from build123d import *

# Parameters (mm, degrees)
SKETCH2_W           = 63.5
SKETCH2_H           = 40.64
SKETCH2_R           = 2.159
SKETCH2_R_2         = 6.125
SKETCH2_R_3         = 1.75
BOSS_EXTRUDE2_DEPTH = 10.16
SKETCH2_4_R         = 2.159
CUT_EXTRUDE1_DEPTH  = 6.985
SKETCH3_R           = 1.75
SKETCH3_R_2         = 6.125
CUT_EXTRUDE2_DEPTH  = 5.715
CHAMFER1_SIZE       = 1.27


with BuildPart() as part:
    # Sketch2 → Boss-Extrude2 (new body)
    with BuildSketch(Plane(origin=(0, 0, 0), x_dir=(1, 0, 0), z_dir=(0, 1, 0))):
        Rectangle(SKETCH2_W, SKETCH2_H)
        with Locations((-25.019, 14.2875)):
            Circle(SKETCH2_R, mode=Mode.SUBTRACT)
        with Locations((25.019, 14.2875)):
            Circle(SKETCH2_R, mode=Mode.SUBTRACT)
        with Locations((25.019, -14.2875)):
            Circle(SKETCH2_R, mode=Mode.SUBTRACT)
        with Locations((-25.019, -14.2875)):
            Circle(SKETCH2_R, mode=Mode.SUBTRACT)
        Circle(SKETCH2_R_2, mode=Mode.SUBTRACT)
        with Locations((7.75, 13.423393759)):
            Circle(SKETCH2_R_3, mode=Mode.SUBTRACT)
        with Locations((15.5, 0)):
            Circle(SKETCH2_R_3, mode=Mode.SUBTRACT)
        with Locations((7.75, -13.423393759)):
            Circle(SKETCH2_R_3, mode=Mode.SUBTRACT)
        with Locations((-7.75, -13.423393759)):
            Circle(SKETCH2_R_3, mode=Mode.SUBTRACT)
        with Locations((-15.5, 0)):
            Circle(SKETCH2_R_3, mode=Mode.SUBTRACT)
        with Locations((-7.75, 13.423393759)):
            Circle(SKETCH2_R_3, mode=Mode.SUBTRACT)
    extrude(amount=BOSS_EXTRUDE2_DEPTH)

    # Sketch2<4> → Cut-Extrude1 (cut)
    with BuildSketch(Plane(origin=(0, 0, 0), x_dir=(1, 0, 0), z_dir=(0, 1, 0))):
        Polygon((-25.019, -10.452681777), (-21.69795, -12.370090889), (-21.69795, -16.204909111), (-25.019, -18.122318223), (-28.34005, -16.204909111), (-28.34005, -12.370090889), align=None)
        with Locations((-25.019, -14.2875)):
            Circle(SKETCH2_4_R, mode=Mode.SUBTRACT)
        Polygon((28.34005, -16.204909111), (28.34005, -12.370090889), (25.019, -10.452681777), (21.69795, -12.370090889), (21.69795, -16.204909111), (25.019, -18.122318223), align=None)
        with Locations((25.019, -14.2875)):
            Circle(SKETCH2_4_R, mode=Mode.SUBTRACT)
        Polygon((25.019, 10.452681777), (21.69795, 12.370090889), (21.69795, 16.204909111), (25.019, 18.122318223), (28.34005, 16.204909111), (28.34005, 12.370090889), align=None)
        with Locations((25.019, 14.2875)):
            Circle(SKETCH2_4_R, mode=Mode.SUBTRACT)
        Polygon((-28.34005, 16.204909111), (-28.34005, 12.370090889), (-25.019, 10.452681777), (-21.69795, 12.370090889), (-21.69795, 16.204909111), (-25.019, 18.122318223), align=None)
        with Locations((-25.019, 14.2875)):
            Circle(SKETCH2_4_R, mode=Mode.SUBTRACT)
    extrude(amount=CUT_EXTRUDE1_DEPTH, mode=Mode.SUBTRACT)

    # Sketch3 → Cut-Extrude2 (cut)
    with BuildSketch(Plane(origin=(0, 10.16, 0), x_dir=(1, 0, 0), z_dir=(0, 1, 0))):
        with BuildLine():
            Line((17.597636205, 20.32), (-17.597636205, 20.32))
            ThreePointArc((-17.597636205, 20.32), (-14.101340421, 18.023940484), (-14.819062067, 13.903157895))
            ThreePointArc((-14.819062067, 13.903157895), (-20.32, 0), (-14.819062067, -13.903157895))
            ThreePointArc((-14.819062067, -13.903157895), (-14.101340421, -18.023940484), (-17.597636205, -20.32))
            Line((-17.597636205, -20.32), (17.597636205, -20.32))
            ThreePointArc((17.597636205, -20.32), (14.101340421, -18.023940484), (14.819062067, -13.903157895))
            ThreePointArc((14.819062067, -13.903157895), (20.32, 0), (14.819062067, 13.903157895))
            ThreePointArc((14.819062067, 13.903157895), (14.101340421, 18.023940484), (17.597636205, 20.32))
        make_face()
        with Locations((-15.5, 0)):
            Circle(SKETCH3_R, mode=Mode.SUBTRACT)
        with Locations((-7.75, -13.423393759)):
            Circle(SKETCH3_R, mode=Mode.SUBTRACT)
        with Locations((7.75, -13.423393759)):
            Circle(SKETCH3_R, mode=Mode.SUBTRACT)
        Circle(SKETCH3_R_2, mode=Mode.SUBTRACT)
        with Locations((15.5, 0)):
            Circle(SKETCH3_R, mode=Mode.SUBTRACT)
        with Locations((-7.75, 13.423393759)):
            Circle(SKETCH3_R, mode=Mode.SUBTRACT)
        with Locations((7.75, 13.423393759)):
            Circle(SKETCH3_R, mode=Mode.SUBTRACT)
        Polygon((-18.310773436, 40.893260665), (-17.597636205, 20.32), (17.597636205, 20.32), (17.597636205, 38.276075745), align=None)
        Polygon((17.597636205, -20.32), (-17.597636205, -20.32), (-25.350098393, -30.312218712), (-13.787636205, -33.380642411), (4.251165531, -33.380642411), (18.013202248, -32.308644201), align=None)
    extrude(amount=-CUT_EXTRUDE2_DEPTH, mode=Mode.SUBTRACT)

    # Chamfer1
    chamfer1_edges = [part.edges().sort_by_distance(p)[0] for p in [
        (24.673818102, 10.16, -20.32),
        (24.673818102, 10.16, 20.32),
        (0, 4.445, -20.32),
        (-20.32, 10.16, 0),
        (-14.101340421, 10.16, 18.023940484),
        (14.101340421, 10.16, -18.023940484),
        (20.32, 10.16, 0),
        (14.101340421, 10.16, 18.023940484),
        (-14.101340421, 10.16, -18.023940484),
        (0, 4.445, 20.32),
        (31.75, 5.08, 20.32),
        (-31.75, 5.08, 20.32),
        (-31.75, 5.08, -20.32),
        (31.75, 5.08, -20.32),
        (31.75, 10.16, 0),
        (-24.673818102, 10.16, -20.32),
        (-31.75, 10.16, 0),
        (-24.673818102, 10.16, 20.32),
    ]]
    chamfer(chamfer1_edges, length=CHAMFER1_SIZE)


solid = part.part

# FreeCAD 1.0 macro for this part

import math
import FreeCAD as App
import Part
import Sketcher

V = App.Vector
Q = App.Units.Quantity


def edges_at(feature, points):
    """Names of the edges that pass closest to the given points."""
    edges = feature.Shape.Edges
    near = lambda p: min(range(len(edges)), key=lambda i: edges[i].distToShape(Part.Vertex(*p))[0])
    return sorted({f"Edge{near(p) + 1}" for p in points})

doc = App.newDocument("Part")
body = doc.addObject("PartDesign::Body", "Body")

# Sketch on XZ plane
sketch1 = doc.addObject("Sketcher::SketchObject", "Sketch")
body.addObject(sketch1)
sketch1.AttachmentSupport = (doc.XZ_Plane, [""])
sketch1.MapMode = "FlatFace"
sketch1.addGeometry(Part.LineSegment(V(-31.8, -20.3, 0), V(-31.8, 20.3, 0)), False)
sketch1.addGeometry(Part.LineSegment(V(-31.8, 20.3, 0), V(31.8, 20.3, 0)), False)
sketch1.addGeometry(Part.LineSegment(V(31.8, 20.3, 0), V(31.8, -20.3, 0)), False)
sketch1.addGeometry(Part.LineSegment(V(31.8, -20.3, 0), V(-31.8, -20.3, 0)), False)
sketch1.addGeometry(Part.Circle(V(-25, 14.3, 0), V(0, 0, 1), 2.2), False)
sketch1.addGeometry(Part.Circle(V(-7.8, 13.4, 0), V(0, 0, 1), 1.8), False)
sketch1.addGeometry(Part.Circle(V(7.8, 13.4, 0), V(0, 0, 1), 1.8), False)
sketch1.addGeometry(Part.Circle(V(25, 14.3, 0), V(0, 0, 1), 2.2), False)
sketch1.addGeometry(Part.Circle(V(-15.5, 0, 0), V(0, 0, 1), 1.8), False)
sketch1.addGeometry(Part.Circle(V(0, 0, 0), V(0, 0, 1), 6.1), False)
sketch1.addGeometry(Part.Circle(V(-25, -14.3, 0), V(0, 0, 1), 2.2), False)
sketch1.addGeometry(Part.Circle(V(-7.8, -13.4, 0), V(0, 0, 1), 1.8), False)
sketch1.addGeometry(Part.Circle(V(15.5, 0, 0), V(0, 0, 1), 1.8), False)
sketch1.addGeometry(Part.Circle(V(7.8, -13.4, 0), V(0, 0, 1), 1.8), False)
sketch1.addGeometry(Part.Circle(V(25, -14.3, 0), V(0, 0, 1), 2.2), False)
sketch1.addConstraint(Sketcher.Constraint("Coincident", 0, 2, 1, 1))
sketch1.addConstraint(Sketcher.Constraint("Coincident", 1, 2, 2, 1))
sketch1.addConstraint(Sketcher.Constraint("Coincident", 2, 2, 3, 1))
sketch1.addConstraint(Sketcher.Constraint("Coincident", 3, 2, 0, 1))
sketch1.addConstraint(Sketcher.Constraint("Vertical", 0))
sketch1.addConstraint(Sketcher.Constraint("Horizontal", 1))
sketch1.addConstraint(Sketcher.Constraint("Vertical", 2))
sketch1.addConstraint(Sketcher.Constraint("Horizontal", 3))
sketch1.addConstraint(Sketcher.Constraint("Coincident", 9, 3, -1, 1))
sketch1.addConstraint(Sketcher.Constraint("Equal", 5, 6))
sketch1.addConstraint(Sketcher.Constraint("Equal", 4, 7))
sketch1.addConstraint(Sketcher.Constraint("Equal", 6, 8))
sketch1.addConstraint(Sketcher.Constraint("Equal", 7, 10))
sketch1.addConstraint(Sketcher.Constraint("Equal", 8, 11))
sketch1.addConstraint(Sketcher.Constraint("Equal", 11, 12))
sketch1.addConstraint(Sketcher.Constraint("Equal", 12, 13))
sketch1.addConstraint(Sketcher.Constraint("Equal", 10, 14))
sketch1.addConstraint(Sketcher.Constraint("Symmetric", 7, 3, 10, 3, -1, 1))
sketch1.addConstraint(Sketcher.Constraint("Symmetric", 6, 3, 11, 3, -1, 1))
sketch1.addConstraint(Sketcher.Constraint("Symmetric", 8, 3, 12, 3, -1, 1))
sketch1.addConstraint(Sketcher.Constraint("Symmetric", 5, 3, 13, 3, -1, 1))
sketch1.addConstraint(Sketcher.Constraint("Symmetric", 4, 3, 14, 3, -1, 1))
sketch1.addConstraint(Sketcher.Constraint("Symmetric", 0, 2, 2, 2, -1, 1))
sketch1.addConstraint(Sketcher.Constraint("Symmetric", 5, 3, 6, 3, -2))
sketch1.addConstraint(Sketcher.Constraint("Symmetric", 4, 3, 7, 3, -2))
sketch1.addConstraint(Sketcher.Constraint("PointOnObject", 8, 3, -1))
sketch1.addConstraint(Sketcher.Constraint("Diameter", 4, Q("0.17 in")))
sketch1.addConstraint(Sketcher.Constraint("DistanceX", 1, 1, 1, 2, Q("2.5 in")))
sketch1.addConstraint(Sketcher.Constraint("DistanceY", 0, 1, 0, 2, Q("1.6 in")))
sketch1.addConstraint(Sketcher.Constraint("Diameter", 5, 3.5))
sketch1.addConstraint(Sketcher.Constraint("Diameter", 9, 12.25))
sketch1.addConstraint(Sketcher.Constraint("DistanceX", 4, 3, 7, 3, Q("1.97 in")))
sketch1.addConstraint(Sketcher.Constraint("DistanceY", -1, 1, 4, 3, Q("0.5625 in")))
sketch1.addConstraint(Sketcher.Constraint("DistanceX", 5, 3, -1, 1, 7.75))
sketch1.addConstraint(Sketcher.Constraint("DistanceX", 8, 3, -1, 1, 15.5))
sketch1.addConstraint(Sketcher.Constraint("DistanceY", -1, 1, 5, 3, 13.423394))
pad1 = doc.addObject("PartDesign::Pad", "Pad")
body.addObject(pad1)
pad1.Profile = sketch1
pad1.Length = Q("0.4 in")
pad1.Reversed = True

# Sketch on XZ plane
sketch2 = doc.addObject("Sketcher::SketchObject", "Sketch001")
body.addObject(sketch2)
sketch2.AttachmentSupport = (doc.XZ_Plane, [""])
sketch2.MapMode = "FlatFace"
sketch2.addGeometry(Part.LineSegment(V(-21.7, 12.4, 0), V(-25, 10.5, 0)), False)
sketch2.addGeometry(Part.LineSegment(V(-25, 10.5, 0), V(-28.3, 12.4, 0)), False)
sketch2.addGeometry(Part.LineSegment(V(-28.3, 12.4, 0), V(-28.3, 16.2, 0)), False)
sketch2.addGeometry(Part.LineSegment(V(-28.3, 16.2, 0), V(-25, 18.1, 0)), False)
sketch2.addGeometry(Part.LineSegment(V(-25, 18.1, 0), V(-21.7, 16.2, 0)), False)
sketch2.addGeometry(Part.LineSegment(V(-21.7, 16.2, 0), V(-21.7, 12.4, 0)), False)
sketch2.addGeometry(Part.Circle(V(-25, 14.3, 0), V(0, 0, 1), 2.2), False)
sketch2.addGeometry(Part.LineSegment(V(28.3, 16.2, 0), V(28.3, 12.4, 0)), False)
sketch2.addGeometry(Part.LineSegment(V(28.3, 12.4, 0), V(25, 10.5, 0)), False)
sketch2.addGeometry(Part.LineSegment(V(25, 10.5, 0), V(21.7, 12.4, 0)), False)
sketch2.addGeometry(Part.LineSegment(V(21.7, 12.4, 0), V(21.7, 16.2, 0)), False)
sketch2.addGeometry(Part.LineSegment(V(21.7, 16.2, 0), V(25, 18.1, 0)), False)
sketch2.addGeometry(Part.LineSegment(V(25, 18.1, 0), V(28.3, 16.2, 0)), False)
sketch2.addGeometry(Part.Circle(V(25, 14.3, 0), V(0, 0, 1), 2.2), False)
sketch2.addGeometry(Part.LineSegment(V(21.7, -12.4, 0), V(25, -10.5, 0)), False)
sketch2.addGeometry(Part.LineSegment(V(25, -10.5, 0), V(28.3, -12.4, 0)), False)
sketch2.addGeometry(Part.LineSegment(V(28.3, -12.4, 0), V(28.3, -16.2, 0)), False)
sketch2.addGeometry(Part.LineSegment(V(28.3, -16.2, 0), V(25, -18.1, 0)), False)
sketch2.addGeometry(Part.LineSegment(V(25, -18.1, 0), V(21.7, -16.2, 0)), False)
sketch2.addGeometry(Part.LineSegment(V(21.7, -16.2, 0), V(21.7, -12.4, 0)), False)
sketch2.addGeometry(Part.Circle(V(25, -14.3, 0), V(0, 0, 1), 2.2), False)
sketch2.addGeometry(Part.LineSegment(V(-28.3, -16.2, 0), V(-28.3, -12.4, 0)), False)
sketch2.addGeometry(Part.LineSegment(V(-28.3, -12.4, 0), V(-25, -10.5, 0)), False)
sketch2.addGeometry(Part.LineSegment(V(-25, -10.5, 0), V(-21.7, -12.4, 0)), False)
sketch2.addGeometry(Part.LineSegment(V(-21.7, -12.4, 0), V(-21.7, -16.2, 0)), False)
sketch2.addGeometry(Part.LineSegment(V(-21.7, -16.2, 0), V(-25, -18.1, 0)), False)
sketch2.addGeometry(Part.LineSegment(V(-25, -18.1, 0), V(-28.3, -16.2, 0)), False)
sketch2.addGeometry(Part.Circle(V(-25, -14.3, 0), V(0, 0, 1), 2.2), False)
sketch2.addConstraint(Sketcher.Constraint("Coincident", 0, 2, 1, 1))
sketch2.addConstraint(Sketcher.Constraint("Coincident", 1, 2, 2, 1))
sketch2.addConstraint(Sketcher.Constraint("Coincident", 2, 2, 3, 1))
sketch2.addConstraint(Sketcher.Constraint("Coincident", 3, 2, 4, 1))
sketch2.addConstraint(Sketcher.Constraint("Coincident", 4, 2, 5, 1))
sketch2.addConstraint(Sketcher.Constraint("Coincident", 5, 2, 0, 1))
sketch2.addConstraint(Sketcher.Constraint("Coincident", 7, 2, 8, 1))
sketch2.addConstraint(Sketcher.Constraint("Coincident", 8, 2, 9, 1))
sketch2.addConstraint(Sketcher.Constraint("Coincident", 9, 2, 10, 1))
sketch2.addConstraint(Sketcher.Constraint("Coincident", 10, 2, 11, 1))
sketch2.addConstraint(Sketcher.Constraint("Coincident", 11, 2, 12, 1))
sketch2.addConstraint(Sketcher.Constraint("Coincident", 12, 2, 7, 1))
sketch2.addConstraint(Sketcher.Constraint("Coincident", 14, 2, 15, 1))
sketch2.addConstraint(Sketcher.Constraint("Coincident", 15, 2, 16, 1))
sketch2.addConstraint(Sketcher.Constraint("Coincident", 16, 2, 17, 1))
sketch2.addConstraint(Sketcher.Constraint("Coincident", 17, 2, 18, 1))
sketch2.addConstraint(Sketcher.Constraint("Coincident", 18, 2, 19, 1))
sketch2.addConstraint(Sketcher.Constraint("Coincident", 19, 2, 14, 1))
sketch2.addConstraint(Sketcher.Constraint("Coincident", 21, 2, 22, 1))
sketch2.addConstraint(Sketcher.Constraint("Coincident", 22, 2, 23, 1))
sketch2.addConstraint(Sketcher.Constraint("Coincident", 23, 2, 24, 1))
sketch2.addConstraint(Sketcher.Constraint("Coincident", 24, 2, 25, 1))
sketch2.addConstraint(Sketcher.Constraint("Coincident", 25, 2, 26, 1))
sketch2.addConstraint(Sketcher.Constraint("Coincident", 26, 2, 21, 1))
sketch2.addConstraint(Sketcher.Constraint("Vertical", 2))
sketch2.addConstraint(Sketcher.Constraint("Vertical", 5))
sketch2.addConstraint(Sketcher.Constraint("Vertical", 7))
sketch2.addConstraint(Sketcher.Constraint("Vertical", 10))
sketch2.addConstraint(Sketcher.Constraint("Vertical", 16))
sketch2.addConstraint(Sketcher.Constraint("Vertical", 19))
sketch2.addConstraint(Sketcher.Constraint("Vertical", 21))
sketch2.addConstraint(Sketcher.Constraint("Vertical", 24))
sketch2.addConstraint(Sketcher.Constraint("Equal", 6, 13))
sketch2.addConstraint(Sketcher.Constraint("Equal", 13, 20))
sketch2.addConstraint(Sketcher.Constraint("Equal", 20, 27))
sketch2.addConstraint(Sketcher.Constraint("Symmetric", 6, 3, 20, 3, -1, 1))
sketch2.addConstraint(Sketcher.Constraint("Symmetric", 13, 3, 27, 3, -1, 1))
sketch2.addConstraint(Sketcher.Constraint("Symmetric", 0, 2, 14, 2, -1, 1))
sketch2.addConstraint(Sketcher.Constraint("Symmetric", 1, 2, 15, 2, -1, 1))
sketch2.addConstraint(Sketcher.Constraint("Symmetric", 3, 2, 17, 2, -1, 1))
sketch2.addConstraint(Sketcher.Constraint("Symmetric", 4, 2, 18, 2, -1, 1))
sketch2.addConstraint(Sketcher.Constraint("Symmetric", 7, 2, 21, 2, -1, 1))
sketch2.addConstraint(Sketcher.Constraint("Symmetric", 8, 2, 22, 2, -1, 1))
sketch2.addConstraint(Sketcher.Constraint("Symmetric", 9, 2, 23, 2, -1, 1))
sketch2.addConstraint(Sketcher.Constraint("Symmetric", 11, 2, 25, 2, -1, 1))
sketch2.addConstraint(Sketcher.Constraint("Symmetric", 6, 3, 13, 3, -2))
sketch2.addConstraint(Sketcher.Constraint("Symmetric", 1, 2, 7, 2, -2))
sketch2.addConstraint(Sketcher.Constraint("Symmetric", 0, 2, 8, 2, -2))
sketch2.addConstraint(Sketcher.Constraint("Symmetric", 5, 2, 9, 2, -2))
sketch2.addConstraint(Sketcher.Constraint("Symmetric", 3, 2, 11, 2, -2))
sketch2.addConstraint(Sketcher.Constraint("Parallel", 0, 3))
sketch2.addConstraint(Sketcher.Constraint("Parallel", 1, 4))
sketch2.addConstraint(Sketcher.Constraint("Parallel", 3, 8))
sketch2.addConstraint(Sketcher.Constraint("Parallel", 8, 11))
sketch2.addConstraint(Sketcher.Constraint("Parallel", 9, 12))
sketch2.addConstraint(Sketcher.Constraint("Parallel", 11, 14))
sketch2.addConstraint(Sketcher.Constraint("Parallel", 14, 17))
sketch2.addConstraint(Sketcher.Constraint("Parallel", 22, 25))
sketch2.addConstraint(Sketcher.Constraint("Parallel", 23, 26))
sketch2.addConstraint(Sketcher.Constraint("Horizontal", 2, 2, 4, 2))
sketch2.addConstraint(Sketcher.Constraint("Horizontal", 1, 2, 5, 2))
sketch2.addConstraint(Sketcher.Constraint("Vertical", 27, 3, 0, 2))
sketch2.addConstraint(Sketcher.Constraint("Diameter", 6, Q("0.17 in")))
sketch2.addConstraint(Sketcher.Constraint("Angle", 0, Q("-150 deg")))
sketch2.addConstraint(Sketcher.Constraint("DistanceX", 6, 3, 13, 3, Q("1.97 in")))
sketch2.addConstraint(Sketcher.Constraint("DistanceY", -1, 1, 6, 3, Q("0.5625 in")))
sketch2.addConstraint(Sketcher.Constraint("DistanceY", 16, 2, 7, 2, Q("1.125 in")))
sketch2.addConstraint(Sketcher.Constraint("DistanceX", 2, 2, 4, 2, Q("0.2615 in")))
sketch2.addConstraint(Sketcher.Constraint("DistanceY", 2, 1, 2, 2, 3.834818))
pocket1 = doc.addObject("PartDesign::Pocket", "Pocket")
body.addObject(pocket1)
pocket1.Profile = sketch2
pocket1.Length = Q("0.275 in")

# Sketch on XZ plane
sketch3 = doc.addObject("Sketcher::SketchObject", "Sketch002")
body.addObject(sketch3)
sketch3.AttachmentSupport = (doc.XZ_Plane, [""])
sketch3.MapMode = "FlatFace"
sketch3.AttachmentOffset = App.Placement(V(0, 0, -0.4 * 25.4), App.Rotation())
sketch3.addGeometry(Part.ArcOfCircle(Part.Circle(V(17.6, -16.5, 0), V(0, 0, 1), 3.8), math.radians(137), math.radians(270)), False)
sketch3.addGeometry(Part.LineSegment(V(17.6, -20.3, 0), V(17.6, -38.3, 0)), False)
sketch3.addGeometry(Part.LineSegment(V(17.6, -38.3, 0), V(-18.3, -40.9, 0)), False)
sketch3.addGeometry(Part.LineSegment(V(-18.3, -40.9, 0), V(-17.6, -20.3, 0)), False)
sketch3.addGeometry(Part.ArcOfCircle(Part.Circle(V(-17.6, -16.5, 0), V(0, 0, 1), 3.8), math.radians(-90), math.radians(43)), False)
sketch3.addGeometry(Part.ArcOfCircle(Part.Circle(V(0, 0, 0), V(0, 0, 1), 20.3), math.radians(137), math.radians(223)), False)
sketch3.addGeometry(Part.ArcOfCircle(Part.Circle(V(-17.6, 16.5, 0), V(0, 0, 1), 3.8), math.radians(-43), math.radians(90)), False)
sketch3.addGeometry(Part.LineSegment(V(-17.6, 20.3, 0), V(-25.4, 30.3, 0)), False)
sketch3.addGeometry(Part.LineSegment(V(-25.4, 30.3, 0), V(-13.8, 33.4, 0)), False)
sketch3.addGeometry(Part.LineSegment(V(-13.8, 33.4, 0), V(4.3, 33.4, 0)), False)
sketch3.addGeometry(Part.LineSegment(V(4.3, 33.4, 0), V(18, 32.3, 0)), False)
sketch3.addGeometry(Part.LineSegment(V(18, 32.3, 0), V(17.6, 20.3, 0)), False)
sketch3.addGeometry(Part.ArcOfCircle(Part.Circle(V(17.6, 16.5, 0), V(0, 0, 1), 3.8), math.radians(90), math.radians(223)), False)
sketch3.addGeometry(Part.ArcOfCircle(Part.Circle(V(0, 0, 0), V(0, 0, 1), 20.3), math.radians(-43), math.radians(43)), False)
sketch3.addGeometry(Part.Circle(V(-7.8, 13.4, 0), V(0, 0, 1), 1.8), False)
sketch3.addGeometry(Part.Circle(V(7.8, 13.4, 0), V(0, 0, 1), 1.8), False)
sketch3.addGeometry(Part.Circle(V(-15.5, 0, 0), V(0, 0, 1), 1.8), False)
sketch3.addGeometry(Part.Circle(V(-7.8, -13.4, 0), V(0, 0, 1), 1.8), False)
sketch3.addGeometry(Part.Circle(V(0, 0, 0), V(0, 0, 1), 6.1), False)
sketch3.addGeometry(Part.Circle(V(15.5, 0, 0), V(0, 0, 1), 1.8), False)
sketch3.addGeometry(Part.Circle(V(7.8, -13.4, 0), V(0, 0, 1), 1.8), False)
sketch3.addConstraint(Sketcher.Constraint("Coincident", 0, 2, 1, 1))
sketch3.addConstraint(Sketcher.Constraint("Coincident", 1, 2, 2, 1))
sketch3.addConstraint(Sketcher.Constraint("Coincident", 2, 2, 3, 1))
sketch3.addConstraint(Sketcher.Constraint("Coincident", 3, 2, 4, 1))
sketch3.addConstraint(Sketcher.Constraint("Tangent", 4, 2, 5, 2))
sketch3.addConstraint(Sketcher.Constraint("Tangent", 5, 1, 6, 1))
sketch3.addConstraint(Sketcher.Constraint("Coincident", 6, 2, 7, 1))
sketch3.addConstraint(Sketcher.Constraint("Coincident", 7, 2, 8, 1))
sketch3.addConstraint(Sketcher.Constraint("Coincident", 8, 2, 9, 1))
sketch3.addConstraint(Sketcher.Constraint("Coincident", 9, 2, 10, 1))
sketch3.addConstraint(Sketcher.Constraint("Coincident", 10, 2, 11, 1))
sketch3.addConstraint(Sketcher.Constraint("Coincident", 11, 2, 12, 1))
sketch3.addConstraint(Sketcher.Constraint("Tangent", 12, 2, 13, 2))
sketch3.addConstraint(Sketcher.Constraint("Tangent", 13, 1, 0, 1))
sketch3.addConstraint(Sketcher.Constraint("Vertical", 1))
sketch3.addConstraint(Sketcher.Constraint("Horizontal", 9))
sketch3.addConstraint(Sketcher.Constraint("Coincident", 5, 3, -1, 1))
sketch3.addConstraint(Sketcher.Constraint("Coincident", 13, 3, -1, 1))
sketch3.addConstraint(Sketcher.Constraint("Coincident", 18, 3, -1, 1))
sketch3.addConstraint(Sketcher.Constraint("Equal", 0, 4))
sketch3.addConstraint(Sketcher.Constraint("Equal", 4, 6))
sketch3.addConstraint(Sketcher.Constraint("Equal", 6, 12))
sketch3.addConstraint(Sketcher.Constraint("Equal", 5, 13))
sketch3.addConstraint(Sketcher.Constraint("Equal", 14, 15))
sketch3.addConstraint(Sketcher.Constraint("Equal", 15, 16))
sketch3.addConstraint(Sketcher.Constraint("Equal", 16, 17))
sketch3.addConstraint(Sketcher.Constraint("Equal", 17, 19))
sketch3.addConstraint(Sketcher.Constraint("Equal", 19, 20))
sketch3.addConstraint(Sketcher.Constraint("Symmetric", 15, 3, 17, 3, -1, 1))
sketch3.addConstraint(Sketcher.Constraint("Symmetric", 16, 3, 19, 3, -1, 1))
sketch3.addConstraint(Sketcher.Constraint("Symmetric", 14, 3, 20, 3, -1, 1))
sketch3.addConstraint(Sketcher.Constraint("Symmetric", 0, 2, 6, 2, -1, 1))
sketch3.addConstraint(Sketcher.Constraint("Symmetric", 3, 2, 11, 2, -1, 1))
sketch3.addConstraint(Sketcher.Constraint("Symmetric", 14, 3, 15, 3, -2))
sketch3.addConstraint(Sketcher.Constraint("Symmetric", 0, 2, 3, 2, -2))
sketch3.addConstraint(Sketcher.Constraint("PointOnObject", 16, 3, -1))
sketch3.addConstraint(Sketcher.Constraint("Parallel", 3, 11))
sketch3.addConstraint(Sketcher.Constraint("Vertical", 12, 3, 0, 2))
sketch3.addConstraint(Sketcher.Constraint("Radius", 5, Q("0.8 in")))
sketch3.addConstraint(Sketcher.Constraint("Radius", 0, Q("0.15 in")))
sketch3.addConstraint(Sketcher.Constraint("DistanceY", 0, 2, -1, 1, Q("0.8 in")))
sketch3.addConstraint(Sketcher.Constraint("Diameter", 14, 3.5))
sketch3.addConstraint(Sketcher.Constraint("Diameter", 18, 12.25))
sketch3.addConstraint(Sketcher.Constraint("DistanceX", 6, 2, 8, 2, Q("0.15 in")))
sketch3.addConstraint(Sketcher.Constraint("DistanceX", 9, 1, 9, 2, 18.038802))
sketch3.addConstraint(Sketcher.Constraint("DistanceX", 14, 3, -1, 1, 7.75))
sketch3.addConstraint(Sketcher.Constraint("DistanceX", 16, 3, -1, 1, 15.5))
sketch3.addConstraint(Sketcher.Constraint("DistanceX", 7, 2, -1, 1, 25.350098))
sketch3.addConstraint(Sketcher.Constraint("DistanceY", 10, 2, 9, 2, 1.071998))
sketch3.addConstraint(Sketcher.Constraint("Distance", 2, 36.00366))
sketch3.addConstraint(Sketcher.Constraint("Distance", 7, 12.646941))
sketch3.addConstraint(Sketcher.Constraint("Distance", 8, 11.962682))
sketch3.addConstraint(Sketcher.Constraint("DistanceY", 1, 2, 1, 1, 17.956076))
sketch3.addConstraint(Sketcher.Constraint("DistanceY", 2, 2, -1, 1, 40.893261))
sketch3.addConstraint(Sketcher.Constraint("DistanceY", 1, 2, 20, 3, 24.852682))
pocket2 = doc.addObject("PartDesign::Pocket", "Pocket001")
body.addObject(pocket2)
pocket2.Profile = sketch3
pocket2.Length = Q("0.225 in")
pocket2.Reversed = True
doc.recompute()

chamfer = doc.addObject("PartDesign::Chamfer", "Chamfer")
body.addObject(chamfer)
chamfer.Base = (pocket2, edges_at(pocket2, [
    (24.674, 10.16, -20.32),
    (24.674, 10.16, 20.32),
    (0, 4.445, -20.32),
    (-20.32, 10.16, 0),
    (-14.101, 10.16, 18.024),
    (14.101, 10.16, -18.024),
    (20.32, 10.16, 0),
    (14.101, 10.16, 18.024),
    (-14.101, 10.16, -18.024),
    (0, 4.445, 20.32),
    (31.75, 5.08, 20.32),
    (-31.75, 5.08, 20.32),
    (-31.75, 5.08, -20.32),
    (31.75, 5.08, -20.32),
    (31.75, 10.16, 0),
    (-24.674, 10.16, -20.32),
    (-31.75, 10.16, 0),
    (-24.674, 10.16, 20.32),
]))
chamfer.Size = Q("0.05 in")

doc.recompute()
